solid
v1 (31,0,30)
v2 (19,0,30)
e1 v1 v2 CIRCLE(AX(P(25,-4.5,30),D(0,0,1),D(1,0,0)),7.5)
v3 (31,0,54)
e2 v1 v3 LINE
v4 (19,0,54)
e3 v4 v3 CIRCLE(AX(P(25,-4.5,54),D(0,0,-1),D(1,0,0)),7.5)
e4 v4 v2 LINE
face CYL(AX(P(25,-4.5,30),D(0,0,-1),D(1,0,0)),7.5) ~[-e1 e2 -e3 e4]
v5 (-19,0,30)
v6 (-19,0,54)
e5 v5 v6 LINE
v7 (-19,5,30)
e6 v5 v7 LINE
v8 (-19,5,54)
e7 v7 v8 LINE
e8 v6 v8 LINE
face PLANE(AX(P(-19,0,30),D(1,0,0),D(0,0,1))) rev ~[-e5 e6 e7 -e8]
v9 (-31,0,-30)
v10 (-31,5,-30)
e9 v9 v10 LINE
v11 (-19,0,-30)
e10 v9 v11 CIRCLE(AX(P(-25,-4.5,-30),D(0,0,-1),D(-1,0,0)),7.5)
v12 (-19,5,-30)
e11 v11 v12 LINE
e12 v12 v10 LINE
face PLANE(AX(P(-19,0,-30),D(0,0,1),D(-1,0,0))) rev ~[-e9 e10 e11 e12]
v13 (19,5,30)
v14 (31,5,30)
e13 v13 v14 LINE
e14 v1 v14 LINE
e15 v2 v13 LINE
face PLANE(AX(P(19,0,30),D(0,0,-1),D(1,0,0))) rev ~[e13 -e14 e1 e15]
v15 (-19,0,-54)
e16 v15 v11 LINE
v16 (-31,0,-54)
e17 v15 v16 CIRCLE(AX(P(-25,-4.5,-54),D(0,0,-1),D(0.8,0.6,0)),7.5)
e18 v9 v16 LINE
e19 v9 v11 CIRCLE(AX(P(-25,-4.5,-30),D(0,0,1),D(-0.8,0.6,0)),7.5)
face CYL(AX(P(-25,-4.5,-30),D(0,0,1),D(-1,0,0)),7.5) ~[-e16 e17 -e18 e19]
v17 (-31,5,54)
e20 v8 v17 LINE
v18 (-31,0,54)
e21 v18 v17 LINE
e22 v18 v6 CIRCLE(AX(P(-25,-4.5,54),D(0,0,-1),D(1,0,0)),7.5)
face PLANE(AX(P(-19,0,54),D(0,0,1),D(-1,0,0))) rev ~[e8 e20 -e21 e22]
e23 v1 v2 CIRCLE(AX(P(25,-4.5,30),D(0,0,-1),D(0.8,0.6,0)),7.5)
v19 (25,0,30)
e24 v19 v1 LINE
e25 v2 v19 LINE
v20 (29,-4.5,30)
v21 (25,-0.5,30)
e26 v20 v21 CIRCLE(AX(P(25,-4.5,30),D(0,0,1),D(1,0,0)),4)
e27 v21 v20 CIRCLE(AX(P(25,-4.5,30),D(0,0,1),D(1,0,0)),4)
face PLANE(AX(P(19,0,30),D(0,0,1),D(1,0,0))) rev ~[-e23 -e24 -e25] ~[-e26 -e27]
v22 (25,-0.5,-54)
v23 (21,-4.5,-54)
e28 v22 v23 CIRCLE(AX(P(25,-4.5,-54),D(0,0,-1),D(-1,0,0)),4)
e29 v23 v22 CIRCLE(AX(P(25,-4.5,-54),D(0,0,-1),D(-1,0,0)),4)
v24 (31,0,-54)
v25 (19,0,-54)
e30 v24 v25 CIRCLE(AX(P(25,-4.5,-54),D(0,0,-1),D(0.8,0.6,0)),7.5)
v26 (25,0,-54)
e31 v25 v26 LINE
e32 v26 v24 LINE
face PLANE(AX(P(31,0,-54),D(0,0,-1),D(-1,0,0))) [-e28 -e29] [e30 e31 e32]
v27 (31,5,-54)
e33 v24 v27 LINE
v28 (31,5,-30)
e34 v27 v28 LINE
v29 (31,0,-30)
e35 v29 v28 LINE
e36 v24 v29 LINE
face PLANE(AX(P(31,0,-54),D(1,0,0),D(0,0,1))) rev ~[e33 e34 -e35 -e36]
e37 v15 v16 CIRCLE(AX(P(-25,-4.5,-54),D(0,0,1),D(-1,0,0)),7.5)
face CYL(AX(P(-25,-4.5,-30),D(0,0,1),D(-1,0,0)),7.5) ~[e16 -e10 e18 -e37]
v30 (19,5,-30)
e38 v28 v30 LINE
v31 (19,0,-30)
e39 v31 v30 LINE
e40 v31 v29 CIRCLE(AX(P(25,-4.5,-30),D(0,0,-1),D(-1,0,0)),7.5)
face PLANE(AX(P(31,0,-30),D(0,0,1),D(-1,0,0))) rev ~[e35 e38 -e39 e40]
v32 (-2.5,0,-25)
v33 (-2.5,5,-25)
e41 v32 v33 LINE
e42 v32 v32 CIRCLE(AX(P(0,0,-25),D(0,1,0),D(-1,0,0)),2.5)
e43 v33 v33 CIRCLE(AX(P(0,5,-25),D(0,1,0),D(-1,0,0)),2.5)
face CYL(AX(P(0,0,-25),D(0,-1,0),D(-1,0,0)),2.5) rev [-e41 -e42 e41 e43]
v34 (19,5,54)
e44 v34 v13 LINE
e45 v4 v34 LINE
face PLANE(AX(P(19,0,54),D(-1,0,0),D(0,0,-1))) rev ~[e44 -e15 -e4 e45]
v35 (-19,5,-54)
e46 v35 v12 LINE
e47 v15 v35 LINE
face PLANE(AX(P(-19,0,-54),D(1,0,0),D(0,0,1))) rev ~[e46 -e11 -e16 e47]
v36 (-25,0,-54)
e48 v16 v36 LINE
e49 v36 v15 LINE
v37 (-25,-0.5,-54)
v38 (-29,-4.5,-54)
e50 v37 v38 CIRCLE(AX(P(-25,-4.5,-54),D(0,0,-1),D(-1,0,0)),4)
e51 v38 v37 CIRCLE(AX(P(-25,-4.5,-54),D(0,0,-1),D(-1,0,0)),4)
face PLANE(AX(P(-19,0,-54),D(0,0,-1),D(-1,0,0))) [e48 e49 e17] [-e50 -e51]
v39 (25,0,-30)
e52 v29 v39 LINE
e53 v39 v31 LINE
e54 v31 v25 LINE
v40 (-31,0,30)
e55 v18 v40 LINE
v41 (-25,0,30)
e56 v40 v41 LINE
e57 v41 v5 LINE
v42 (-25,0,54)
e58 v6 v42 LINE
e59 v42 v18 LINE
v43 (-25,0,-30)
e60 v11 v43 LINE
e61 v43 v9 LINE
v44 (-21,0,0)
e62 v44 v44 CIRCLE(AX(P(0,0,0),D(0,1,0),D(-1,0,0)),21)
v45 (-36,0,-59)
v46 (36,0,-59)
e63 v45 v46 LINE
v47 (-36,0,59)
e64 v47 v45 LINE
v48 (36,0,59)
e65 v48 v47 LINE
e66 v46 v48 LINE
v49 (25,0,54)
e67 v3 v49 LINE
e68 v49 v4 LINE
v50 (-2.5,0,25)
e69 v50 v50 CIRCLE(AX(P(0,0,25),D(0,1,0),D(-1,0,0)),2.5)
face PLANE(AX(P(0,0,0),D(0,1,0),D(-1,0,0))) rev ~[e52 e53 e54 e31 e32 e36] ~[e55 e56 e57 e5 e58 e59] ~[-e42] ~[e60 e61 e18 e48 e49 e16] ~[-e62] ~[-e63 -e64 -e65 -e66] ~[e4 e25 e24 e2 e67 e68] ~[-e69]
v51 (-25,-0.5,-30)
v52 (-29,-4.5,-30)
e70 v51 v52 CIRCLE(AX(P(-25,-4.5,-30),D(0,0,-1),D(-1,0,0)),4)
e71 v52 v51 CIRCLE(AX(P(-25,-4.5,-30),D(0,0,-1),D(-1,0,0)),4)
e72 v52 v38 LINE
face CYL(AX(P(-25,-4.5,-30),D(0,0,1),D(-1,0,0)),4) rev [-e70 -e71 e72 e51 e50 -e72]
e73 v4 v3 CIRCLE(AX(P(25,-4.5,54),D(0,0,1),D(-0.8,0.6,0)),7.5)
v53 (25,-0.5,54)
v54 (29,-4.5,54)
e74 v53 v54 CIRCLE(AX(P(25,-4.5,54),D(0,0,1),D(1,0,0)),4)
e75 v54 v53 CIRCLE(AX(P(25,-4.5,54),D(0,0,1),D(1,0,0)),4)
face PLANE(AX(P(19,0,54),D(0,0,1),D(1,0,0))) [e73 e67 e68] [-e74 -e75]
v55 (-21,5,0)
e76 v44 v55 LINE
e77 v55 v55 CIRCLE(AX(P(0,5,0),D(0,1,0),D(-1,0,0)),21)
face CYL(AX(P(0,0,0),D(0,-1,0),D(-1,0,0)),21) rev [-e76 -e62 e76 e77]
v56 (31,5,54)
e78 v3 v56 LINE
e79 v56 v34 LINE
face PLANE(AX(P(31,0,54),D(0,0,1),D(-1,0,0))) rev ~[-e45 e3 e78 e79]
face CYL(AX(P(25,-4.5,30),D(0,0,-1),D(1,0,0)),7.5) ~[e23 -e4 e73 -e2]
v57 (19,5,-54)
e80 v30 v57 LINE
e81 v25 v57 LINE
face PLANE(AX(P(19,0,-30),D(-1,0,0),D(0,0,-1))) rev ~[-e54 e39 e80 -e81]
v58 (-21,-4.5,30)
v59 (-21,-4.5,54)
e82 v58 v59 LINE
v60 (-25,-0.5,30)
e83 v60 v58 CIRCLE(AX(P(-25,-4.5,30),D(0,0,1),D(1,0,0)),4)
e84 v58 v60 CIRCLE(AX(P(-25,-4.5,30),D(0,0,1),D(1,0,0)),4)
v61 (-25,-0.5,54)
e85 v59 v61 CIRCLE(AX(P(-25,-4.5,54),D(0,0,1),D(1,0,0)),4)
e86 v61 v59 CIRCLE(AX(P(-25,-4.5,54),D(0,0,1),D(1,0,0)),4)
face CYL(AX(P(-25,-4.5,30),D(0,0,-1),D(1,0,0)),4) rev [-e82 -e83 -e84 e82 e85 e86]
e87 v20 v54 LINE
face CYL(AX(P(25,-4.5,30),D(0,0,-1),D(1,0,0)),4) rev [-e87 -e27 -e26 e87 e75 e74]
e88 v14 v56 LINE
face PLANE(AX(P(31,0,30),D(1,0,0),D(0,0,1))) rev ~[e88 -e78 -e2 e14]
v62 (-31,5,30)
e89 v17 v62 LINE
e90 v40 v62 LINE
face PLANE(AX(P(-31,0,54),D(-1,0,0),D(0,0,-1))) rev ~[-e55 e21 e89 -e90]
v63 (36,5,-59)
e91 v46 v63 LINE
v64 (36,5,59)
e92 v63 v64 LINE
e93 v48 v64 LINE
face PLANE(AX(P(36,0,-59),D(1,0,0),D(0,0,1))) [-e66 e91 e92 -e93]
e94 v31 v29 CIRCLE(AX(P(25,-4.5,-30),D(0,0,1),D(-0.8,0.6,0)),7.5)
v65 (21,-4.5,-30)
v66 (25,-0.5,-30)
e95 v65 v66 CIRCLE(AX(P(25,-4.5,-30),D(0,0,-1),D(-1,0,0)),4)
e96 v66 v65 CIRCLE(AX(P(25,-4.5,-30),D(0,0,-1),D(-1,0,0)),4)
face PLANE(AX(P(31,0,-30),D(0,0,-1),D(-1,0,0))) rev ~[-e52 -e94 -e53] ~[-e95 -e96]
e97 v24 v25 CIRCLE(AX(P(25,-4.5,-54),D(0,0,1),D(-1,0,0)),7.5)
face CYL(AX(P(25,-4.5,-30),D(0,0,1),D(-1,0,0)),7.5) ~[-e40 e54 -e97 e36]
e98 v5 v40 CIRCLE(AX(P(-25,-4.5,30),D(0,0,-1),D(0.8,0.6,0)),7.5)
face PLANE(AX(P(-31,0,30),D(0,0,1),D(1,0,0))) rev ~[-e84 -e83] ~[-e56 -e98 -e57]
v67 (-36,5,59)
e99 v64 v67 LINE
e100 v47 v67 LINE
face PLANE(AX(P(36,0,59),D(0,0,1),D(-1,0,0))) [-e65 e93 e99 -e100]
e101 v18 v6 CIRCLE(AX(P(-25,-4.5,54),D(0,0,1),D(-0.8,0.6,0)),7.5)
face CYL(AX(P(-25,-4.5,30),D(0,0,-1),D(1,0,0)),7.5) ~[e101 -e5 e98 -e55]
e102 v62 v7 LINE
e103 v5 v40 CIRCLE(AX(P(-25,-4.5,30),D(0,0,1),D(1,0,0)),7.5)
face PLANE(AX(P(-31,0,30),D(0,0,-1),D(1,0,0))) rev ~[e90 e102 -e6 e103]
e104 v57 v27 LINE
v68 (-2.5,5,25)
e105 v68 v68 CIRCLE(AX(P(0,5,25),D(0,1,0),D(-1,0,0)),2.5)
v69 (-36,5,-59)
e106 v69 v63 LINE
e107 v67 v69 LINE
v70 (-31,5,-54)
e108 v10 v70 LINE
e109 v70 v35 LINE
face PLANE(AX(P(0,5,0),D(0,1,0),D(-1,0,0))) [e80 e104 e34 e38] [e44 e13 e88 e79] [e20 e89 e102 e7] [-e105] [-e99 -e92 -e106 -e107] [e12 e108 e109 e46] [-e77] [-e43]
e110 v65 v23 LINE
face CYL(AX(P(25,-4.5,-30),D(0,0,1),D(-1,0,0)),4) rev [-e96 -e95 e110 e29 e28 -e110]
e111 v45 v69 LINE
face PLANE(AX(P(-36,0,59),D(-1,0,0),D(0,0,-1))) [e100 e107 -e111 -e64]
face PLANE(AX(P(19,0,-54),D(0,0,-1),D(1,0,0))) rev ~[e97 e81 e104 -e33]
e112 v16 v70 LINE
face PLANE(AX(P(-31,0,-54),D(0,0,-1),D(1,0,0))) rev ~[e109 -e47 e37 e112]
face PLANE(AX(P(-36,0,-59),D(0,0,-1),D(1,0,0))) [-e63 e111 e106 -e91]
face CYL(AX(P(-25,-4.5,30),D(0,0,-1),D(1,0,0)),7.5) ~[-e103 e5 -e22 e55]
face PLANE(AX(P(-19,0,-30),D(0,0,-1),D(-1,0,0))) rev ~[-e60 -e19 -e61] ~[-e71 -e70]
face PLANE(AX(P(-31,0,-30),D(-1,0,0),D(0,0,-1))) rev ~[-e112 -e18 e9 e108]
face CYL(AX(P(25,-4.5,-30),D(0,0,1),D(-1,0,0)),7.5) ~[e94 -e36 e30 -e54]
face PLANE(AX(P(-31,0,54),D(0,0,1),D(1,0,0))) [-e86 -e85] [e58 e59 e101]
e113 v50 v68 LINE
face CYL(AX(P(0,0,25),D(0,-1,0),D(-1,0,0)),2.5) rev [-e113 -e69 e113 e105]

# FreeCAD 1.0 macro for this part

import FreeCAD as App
import Part
import Sketcher

V = App.Vector
Q = App.Units.Quantity

doc = App.newDocument("Part")
body = doc.addObject("PartDesign::Body", "Body")

# Sketch on XZ plane
sketch1 = body.newObject("Sketcher::SketchObject", "Sketch")
sketch1.AttachmentSupport = (doc.getObject("XZ_Plane"), [""])
sketch1.MapMode = "FlatFace"
sketch1.addGeometry([
    Part.LineSegment(V(-36, 59, 0), V(36, 59, 0)),  # 0
    Part.LineSegment(V(36, 59, 0), V(36, -59, 0)),  # 1
    Part.LineSegment(V(36, -59, 0), V(-36, -59, 0)),  # 2
    Part.LineSegment(V(-36, -59, 0), V(-36, 59, 0)),  # 3
    Part.LineSegment(V(31, -54, 0), V(31, -30, 0)),  # 4
    Part.LineSegment(V(31, -30, 0), V(19, -30, 0)),  # 5
    Part.LineSegment(V(19, -30, 0), V(19, -54, 0)),  # 6
    Part.LineSegment(V(19, -54, 0), V(31, -54, 0)),  # 7
    Part.LineSegment(V(-19, -54, 0), V(-19, -30, 0)),  # 8
    Part.LineSegment(V(-19, -30, 0), V(-31, -30, 0)),  # 9
    Part.LineSegment(V(-31, -30, 0), V(-31, -54, 0)),  # 10
    Part.LineSegment(V(-31, -54, 0), V(-19, -54, 0)),  # 11
    Part.Circle(V(0, -25, 0), V(0, 0, 1), 2.5),  # 12
    Part.LineSegment(V(31, 30, 0), V(31, 54, 0)),  # 13
    Part.LineSegment(V(31, 54, 0), V(19, 54, 0)),  # 14
    Part.LineSegment(V(19, 54, 0), V(19, 30, 0)),  # 15
    Part.LineSegment(V(19, 30, 0), V(31, 30, 0)),  # 16
    Part.Circle(V(0, 0, 0), V(0, 0, 1), 21),  # 17
    Part.Circle(V(0, 25, 0), V(0, 0, 1), 2.5),  # 18
    Part.LineSegment(V(-19, 30, 0), V(-19, 54, 0)),  # 19
    Part.LineSegment(V(-19, 54, 0), V(-31, 54, 0)),  # 20
    Part.LineSegment(V(-31, 54, 0), V(-31, 30, 0)),  # 21
    Part.LineSegment(V(-31, 30, 0), V(-19, 30, 0)),  # 22
], False)
sketch1.addConstraint([
    Sketcher.Constraint("Coincident", 0, 2, 1, 1),
    Sketcher.Constraint("Coincident", 1, 2, 2, 1),
    Sketcher.Constraint("Coincident", 2, 2, 3, 1),
    Sketcher.Constraint("Coincident", 3, 2, 0, 1),
    Sketcher.Constraint("Coincident", 4, 2, 5, 1),
    Sketcher.Constraint("Coincident", 5, 2, 6, 1),
    Sketcher.Constraint("Coincident", 6, 2, 7, 1),
    Sketcher.Constraint("Coincident", 7, 2, 4, 1),
    Sketcher.Constraint("Coincident", 8, 2, 9, 1),
    Sketcher.Constraint("Coincident", 9, 2, 10, 1),
    Sketcher.Constraint("Coincident", 10, 2, 11, 1),
    Sketcher.Constraint("Coincident", 11, 2, 8, 1),
    Sketcher.Constraint("Coincident", 13, 2, 14, 1),
    Sketcher.Constraint("Coincident", 14, 2, 15, 1),
    Sketcher.Constraint("Coincident", 15, 2, 16, 1),
    Sketcher.Constraint("Coincident", 16, 2, 13, 1),
    Sketcher.Constraint("Coincident", 19, 2, 20, 1),
    Sketcher.Constraint("Coincident", 20, 2, 21, 1),
    Sketcher.Constraint("Coincident", 21, 2, 22, 1),
    Sketcher.Constraint("Coincident", 22, 2, 19, 1),
    Sketcher.Constraint("Horizontal", 0),
    Sketcher.Constraint("Vertical", 1),
    Sketcher.Constraint("Horizontal", 2),
    Sketcher.Constraint("Vertical", 3),
    Sketcher.Constraint("Vertical", 4),
    Sketcher.Constraint("Horizontal", 5),
    Sketcher.Constraint("Vertical", 6),
    Sketcher.Constraint("Horizontal", 7),
    Sketcher.Constraint("Vertical", 8),
    Sketcher.Constraint("Horizontal", 9),
    Sketcher.Constraint("Vertical", 10),
    Sketcher.Constraint("Horizontal", 11),
    Sketcher.Constraint("Vertical", 13),
    Sketcher.Constraint("Horizontal", 14),
    Sketcher.Constraint("Vertical", 15),
    Sketcher.Constraint("Horizontal", 16),
    Sketcher.Constraint("Vertical", 19),
    Sketcher.Constraint("Horizontal", 20),
    Sketcher.Constraint("Vertical", 21),
    Sketcher.Constraint("Horizontal", 22),
    Sketcher.Constraint("Coincident", 17, 3, -1, 1),
    Sketcher.Constraint("Equal", 12, 18),
    Sketcher.Constraint("Symmetric", 12, 3, 18, 3, -1, 1),
    Sketcher.Constraint("Symmetric", 0, 2, 2, 2, -1, 1),
    Sketcher.Constraint("Symmetric", 10, 2, 13, 2, -1, 1),
    Sketcher.Constraint("Symmetric", 8, 2, 15, 2, -1, 1),
    Sketcher.Constraint("Symmetric", 6, 2, 19, 2, -1, 1),
    Sketcher.Constraint("Symmetric", 4, 2, 21, 2, -1, 1),
    Sketcher.Constraint("Symmetric", 5, 2, 8, 2, -2),
    Sketcher.Constraint("Symmetric", 7, 2, 10, 2, -2),
    Sketcher.Constraint("PointOnObject", 12, 3, -2),
    Sketcher.Constraint("Diameter", 12, Q("5 mm")),
    Sketcher.Constraint("DistanceX", 5, 2, 5, 1, Q("12 mm")),
    Sketcher.Constraint("DistanceY", 4, 1, 4, 2, Q("24 mm")),
    Sketcher.Constraint("Diameter", 17, Q("42 mm")),
    Sketcher.Constraint("DistanceX", 4, 2, 1, 2, Q("5 mm")),
    Sketcher.Constraint("DistanceY", 4, 2, 12, 3, Q("5 mm")),
    Sketcher.Constraint("DistanceY", 1, 2, 6, 2, Q("5 mm")),
    Sketcher.Constraint("DistanceX", 0, 1, 0, 2, Q("72 mm")),
    Sketcher.Constraint("DistanceY", 1, 2, 1, 1, Q("118 mm")),
])
pad1 = body.newObject("PartDesign::Pad", "Pad")
pad1.Profile = sketch1
pad1.Length = 5
pad1.Reversed = True

# Sketch on XY plane
sketch2 = body.newObject("Sketcher::SketchObject", "Sketch001")
sketch2.AttachmentSupport = (doc.getObject("XY_Plane"), [""])
sketch2.MapMode = "FlatFace"
sketch2.AttachmentOffset = App.Placement(V(0, 0, 30), App.Rotation())
sketch2.addGeometry([
    Part.Circle(V(-25, -4.5, 0), V(0, 0, 1), 7.5),
    Part.Circle(V(-25, -4.5, 0), V(0, 0, 1), 4),
], False)
sketch2.addConstraint([
    Sketcher.Constraint("Coincident", 1, 3, 0, 3),
    Sketcher.Constraint("Diameter", 0, Q("15 mm")),
    Sketcher.Constraint("Diameter", 1, Q("8 mm")),
    Sketcher.Constraint("DistanceY", 0, 3, -1, 1, Q("4.5 mm")),
    Sketcher.Constraint("DistanceX", 0, 3, -1, 1, Q("25 mm")),
])
pad2 = body.newObject("PartDesign::Pad", "Pad001")
pad2.Profile = sketch2
pad2.Length = 24

# Sketch on XY plane
sketch3 = body.newObject("Sketcher::SketchObject", "Sketch002")
sketch3.AttachmentSupport = (doc.getObject("XY_Plane"), [""])
sketch3.MapMode = "FlatFace"
sketch3.AttachmentOffset = App.Placement(V(0, 0, 30), App.Rotation())
sketch3.addGeometry([
    Part.Circle(V(25, -4.5, 0), V(0, 0, 1), 7.5),
    Part.Circle(V(25, -4.5, 0), V(0, 0, 1), 4),
], False)
sketch3.addConstraint([
    Sketcher.Constraint("Coincident", 1, 3, 0, 3),
    Sketcher.Constraint("Diameter", 0, Q("15 mm")),
    Sketcher.Constraint("Diameter", 1, Q("8 mm")),
    Sketcher.Constraint("DistanceY", 0, 3, -1, 1, Q("4.5 mm")),
    Sketcher.Constraint("DistanceX", -1, 1, 0, 3, Q("25 mm")),
])
pad3 = body.newObject("PartDesign::Pad", "Pad002")
pad3.Profile = sketch3
pad3.Length = 24

# Sketch on XY plane
sketch4 = body.newObject("Sketcher::SketchObject", "Sketch003")
sketch4.AttachmentSupport = (doc.getObject("XY_Plane"), [""])
sketch4.MapMode = "FlatFace"
sketch4.AttachmentOffset = App.Placement(V(0, 0, -30), App.Rotation())
sketch4.addGeometry([
    Part.Circle(V(-25, -4.5, 0), V(0, 0, 1), 7.5),
    Part.Circle(V(-25, -4.5, 0), V(0, 0, 1), 4),
], False)
sketch4.addConstraint([
    Sketcher.Constraint("Coincident", 1, 3, 0, 3),
    Sketcher.Constraint("Diameter", 0, Q("15 mm")),
    Sketcher.Constraint("Diameter", 1, Q("8 mm")),
    Sketcher.Constraint("DistanceY", 0, 3, -1, 1, Q("4.5 mm")),
    Sketcher.Constraint("DistanceX", 0, 3, -1, 1, Q("25 mm")),
])
pad4 = body.newObject("PartDesign::Pad", "Pad003")
pad4.Profile = sketch4
pad4.Length = 24
pad4.Reversed = True

# Sketch on XY plane
sketch5 = body.newObject("Sketcher::SketchObject", "Sketch004")
sketch5.AttachmentSupport = (doc.getObject("XY_Plane"), [""])
sketch5.MapMode = "FlatFace"
sketch5.AttachmentOffset = App.Placement(V(0, 0, -30), App.Rotation())
sketch5.addGeometry([
    Part.Circle(V(25, -4.5, 0), V(0, 0, 1), 7.5),
    Part.Circle(V(25, -4.5, 0), V(0, 0, 1), 4),
], False)
sketch5.addConstraint([
    Sketcher.Constraint("Coincident", 1, 3, 0, 3),
    Sketcher.Constraint("Diameter", 0, Q("15 mm")),
    Sketcher.Constraint("Diameter", 1, Q("8 mm")),
    Sketcher.Constraint("DistanceY", 0, 3, -1, 1, Q("4.5 mm")),
    Sketcher.Constraint("DistanceX", -1, 1, 0, 3, Q("25 mm")),
])
pad5 = body.newObject("PartDesign::Pad", "Pad004")
pad5.Profile = sketch5
pad5.Length = 24
pad5.Reversed = True

doc.recompute()
